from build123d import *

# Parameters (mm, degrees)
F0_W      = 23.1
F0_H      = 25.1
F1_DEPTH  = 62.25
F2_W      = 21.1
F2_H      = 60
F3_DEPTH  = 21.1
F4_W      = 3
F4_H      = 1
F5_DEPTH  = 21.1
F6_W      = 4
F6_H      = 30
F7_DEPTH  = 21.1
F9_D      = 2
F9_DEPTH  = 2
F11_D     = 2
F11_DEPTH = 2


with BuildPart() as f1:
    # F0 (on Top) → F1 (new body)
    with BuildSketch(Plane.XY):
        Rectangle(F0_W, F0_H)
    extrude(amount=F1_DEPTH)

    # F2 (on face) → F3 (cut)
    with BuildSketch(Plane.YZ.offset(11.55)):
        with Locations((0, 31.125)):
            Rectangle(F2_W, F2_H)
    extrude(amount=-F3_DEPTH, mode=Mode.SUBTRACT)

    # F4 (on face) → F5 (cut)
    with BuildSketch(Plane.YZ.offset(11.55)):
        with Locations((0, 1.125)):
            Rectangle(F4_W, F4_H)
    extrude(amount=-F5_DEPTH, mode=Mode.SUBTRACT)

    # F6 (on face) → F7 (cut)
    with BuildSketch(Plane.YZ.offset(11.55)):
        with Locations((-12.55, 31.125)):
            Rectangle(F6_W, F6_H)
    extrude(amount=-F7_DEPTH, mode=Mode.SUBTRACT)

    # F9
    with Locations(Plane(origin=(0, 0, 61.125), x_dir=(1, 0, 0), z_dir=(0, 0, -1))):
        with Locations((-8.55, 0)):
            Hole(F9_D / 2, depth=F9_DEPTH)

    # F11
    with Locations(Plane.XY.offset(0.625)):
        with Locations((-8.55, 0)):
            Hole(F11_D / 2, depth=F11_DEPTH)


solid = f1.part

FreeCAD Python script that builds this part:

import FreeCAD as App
import Part
import Sketcher
from FreeCAD import Vector
Q = App.Units.Quantity

doc = App.newDocument("Part")
body = doc.addObject("PartDesign::Body", "Body")

# Sketch on XY plane
sketch1 = body.newObject("Sketcher::SketchObject", "Sketch")
sketch1.AttachmentSupport = (doc.getObject("XY_Plane"), [""])
sketch1.MapMode = "FlatFace"
sketch1.addGeometry(Part.LineSegment(Vector(-12, 13, 0), Vector(-12, -13, 0)), False)
sketch1.addGeometry(Part.LineSegment(Vector(-12, -13, 0), Vector(12, -13, 0)), False)
sketch1.addGeometry(Part.LineSegment(Vector(12, -13, 0), Vector(12, 13, 0)), False)
sketch1.addGeometry(Part.LineSegment(Vector(12, 13, 0), Vector(-12, 13, 0)), False)
sketch1.addConstraint(Sketcher.Constraint("Coincident", 0, 2, 1, 1))
sketch1.addConstraint(Sketcher.Constraint("Coincident", 1, 2, 2, 1))
sketch1.addConstraint(Sketcher.Constraint("Coincident", 2, 2, 3, 1))
sketch1.addConstraint(Sketcher.Constraint("Coincident", 3, 2, 0, 1))
sketch1.addConstraint(Sketcher.Constraint("Vertical", 0))
sketch1.addConstraint(Sketcher.Constraint("Horizontal", 1))
sketch1.addConstraint(Sketcher.Constraint("Vertical", 2))
sketch1.addConstraint(Sketcher.Constraint("Horizontal", 3))
sketch1.addConstraint(Sketcher.Constraint("Symmetric", 0, 2, 2, 2, -1, 1))
sketch1.addConstraint(Sketcher.Constraint("DistanceX", 1, 1, 1, 2, Q("23.1 mm")))
sketch1.addConstraint(Sketcher.Constraint("DistanceY", 0, 2, 0, 1, Q("25.1 mm")))
pad1 = body.newObject("PartDesign::Pad", "Pad")
pad1.Profile = sketch1
pad1.Length = 62.25

# Sketch on YZ plane
sketch2 = body.newObject("Sketcher::SketchObject", "Sketch001")
sketch2.AttachmentSupport = (doc.getObject("YZ_Plane"), [""])
sketch2.MapMode = "FlatFace"
sketch2.AttachmentOffset = App.Placement(Vector(0, 0, 11.55), App.Rotation())
sketch2.addGeometry(Part.LineSegment(Vector(-11, 61, 0), Vector(-11, 1, 0)), False)
sketch2.addGeometry(Part.LineSegment(Vector(-11, 1, 0), Vector(11, 1, 0)), False)
sketch2.addGeometry(Part.LineSegment(Vector(11, 1, 0), Vector(11, 61, 0)), False)
sketch2.addGeometry(Part.LineSegment(Vector(11, 61, 0), Vector(-11, 61, 0)), False)
sketch2.addConstraint(Sketcher.Constraint("Coincident", 0, 2, 1, 1))
sketch2.addConstraint(Sketcher.Constraint("Coincident", 1, 2, 2, 1))
sketch2.addConstraint(Sketcher.Constraint("Coincident", 2, 2, 3, 1))
sketch2.addConstraint(Sketcher.Constraint("Coincident", 3, 2, 0, 1))
sketch2.addConstraint(Sketcher.Constraint("Vertical", 0))
sketch2.addConstraint(Sketcher.Constraint("Horizontal", 1))
sketch2.addConstraint(Sketcher.Constraint("Vertical", 2))
sketch2.addConstraint(Sketcher.Constraint("Horizontal", 3))
sketch2.addConstraint(Sketcher.Constraint("DistanceY", 0, 2, 0, 1, Q("60 mm")))
sketch2.addConstraint(Sketcher.Constraint("DistanceX", 1, 1, 1, 2, Q("21.1 mm")))
sketch2.addConstraint(Sketcher.Constraint("DistanceX", 0, 2, -1, 1, Q("10.55 mm")))
sketch2.addConstraint(Sketcher.Constraint("DistanceY", -1, 1, 0, 2, Q("1.125 mm")))
pocket1 = body.newObject("PartDesign::Pocket", "Pocket")
pocket1.Profile = sketch2
pocket1.Length = 21.1

# Sketch on YZ plane
sketch3 = body.newObject("Sketcher::SketchObject", "Sketch002")
sketch3.AttachmentSupport = (doc.getObject("YZ_Plane"), [""])
sketch3.MapMode = "FlatFace"
sketch3.AttachmentOffset = App.Placement(Vector(0, 0, 11.55), App.Rotation())
sketch3.addGeometry(Part.LineSegment(Vector(-1.5, 1.6, 0), Vector(-1.5, 0.6, 0)), False)
sketch3.addGeometry(Part.LineSegment(Vector(-1.5, 0.6, 0), Vector(1.5, 0.6, 0)), False)
sketch3.addGeometry(Part.LineSegment(Vector(1.5, 0.6, 0), Vector(1.5, 1.6, 0)), False)
sketch3.addGeometry(Part.LineSegment(Vector(1.5, 1.6, 0), Vector(-1.5, 1.6, 0)), False)
sketch3.addConstraint(Sketcher.Constraint("Coincident", 0, 2, 1, 1))
sketch3.addConstraint(Sketcher.Constraint("Coincident", 1, 2, 2, 1))
sketch3.addConstraint(Sketcher.Constraint("Coincident", 2, 2, 3, 1))
sketch3.addConstraint(Sketcher.Constraint("Coincident", 3, 2, 0, 1))
sketch3.addConstraint(Sketcher.Constraint("Vertical", 0))
sketch3.addConstraint(Sketcher.Constraint("Horizontal", 1))
sketch3.addConstraint(Sketcher.Constraint("Vertical", 2))
sketch3.addConstraint(Sketcher.Constraint("Horizontal", 3))
sketch3.addConstraint(Sketcher.Constraint("DistanceX", 1, 1, 1, 2, Q("3 mm")))
sketch3.addConstraint(Sketcher.Constraint("DistanceY", 0, 2, 0, 1, Q("1 mm")))
sketch3.addConstraint(Sketcher.Constraint("DistanceX", 0, 2, -1, 1, Q("1.5 mm")))
sketch3.addConstraint(Sketcher.Constraint("DistanceY", -1, 1, 0, 2, Q("0.625 mm")))
pocket2 = body.newObject("PartDesign::Pocket", "Pocket001")
pocket2.Profile = sketch3
pocket2.Length = 21.1

# Sketch on YZ plane
sketch4 = body.newObject("Sketcher::SketchObject", "Sketch003")
sketch4.AttachmentSupport = (doc.getObject("YZ_Plane"), [""])
sketch4.MapMode = "FlatFace"
sketch4.AttachmentOffset = App.Placement(Vector(0, 0, 11.55), App.Rotation())
sketch4.addGeometry(Part.LineSegment(Vector(-14.6, 46.1, 0), Vector(-14.6, 16.1, 0)), False)
sketch4.addGeometry(Part.LineSegment(Vector(-14.6, 16.1, 0), Vector(-10.6, 16.1, 0)), False)
sketch4.addGeometry(Part.LineSegment(Vector(-10.6, 16.1, 0), Vector(-10.6, 46.1, 0)), False)
sketch4.addGeometry(Part.LineSegment(Vector(-10.6, 46.1, 0), Vector(-14.6, 46.1, 0)), False)
sketch4.addConstraint(Sketcher.Constraint("Coincident", 0, 2, 1, 1))
sketch4.addConstraint(Sketcher.Constraint("Coincident", 1, 2, 2, 1))
sketch4.addConstraint(Sketcher.Constraint("Coincident", 2, 2, 3, 1))
sketch4.addConstraint(Sketcher.Constraint("Coincident", 3, 2, 0, 1))
sketch4.addConstraint(Sketcher.Constraint("Vertical", 0))
sketch4.addConstraint(Sketcher.Constraint("Horizontal", 1))
sketch4.addConstraint(Sketcher.Constraint("Vertical", 2))
sketch4.addConstraint(Sketcher.Constraint("Horizontal", 3))
sketch4.addConstraint(Sketcher.Constraint("DistanceX", 1, 1, 1, 2, Q("4 mm")))
sketch4.addConstraint(Sketcher.Constraint("DistanceY", 0, 2, 0, 1, Q("30 mm")))
sketch4.addConstraint(Sketcher.Constraint("DistanceX", 0, 2, -1, 1, Q("14.55 mm")))
sketch4.addConstraint(Sketcher.Constraint("DistanceY", -1, 1, 0, 2, Q("16.125 mm")))
pocket3 = body.newObject("PartDesign::Pocket", "Pocket002")
pocket3.Profile = sketch4
pocket3.Length = 21.1

# Sketch on XY plane
sketch5 = body.newObject("Sketcher::SketchObject", "Sketch004")
sketch5.AttachmentSupport = (doc.getObject("XY_Plane"), [""])
sketch5.MapMode = "FlatFace"
sketch5.AttachmentOffset = App.Placement(Vector(0, 0, 61.125), App.Rotation())
sketch5.addGeometry(Part.Circle(Vector(-8.6, 0, 0), Vector(0, 0, 1), 1), False)
sketch5.addConstraint(Sketcher.Constraint("PointOnObject", 0, 3, -1))
sketch5.addConstraint(Sketcher.Constraint("Diameter", 0, Q("2 mm")))
sketch5.addConstraint(Sketcher.Constraint("DistanceX", 0, 3, -1, 1, Q("8.55 mm")))
doc.recompute()
hole = body.newObject("PartDesign::Hole", "Hole")
hole.Profile = sketch5
hole.ThreadType = "None"
hole.Diameter = 2
hole.DepthType = "Dimension"
hole.Depth = 2
hole.DrillPoint = "Flat"
hole.Reversed = True

# Sketch on XY plane
sketch6 = body.newObject("Sketcher::SketchObject", "Sketch005")
sketch6.AttachmentSupport = (doc.getObject("XY_Plane"), [""])
sketch6.MapMode = "FlatFace"
sketch6.AttachmentOffset = App.Placement(Vector(0, 0, 0.625), App.Rotation())
sketch6.addGeometry(Part.Circle(Vector(-8.6, 0, 0), Vector(0, 0, 1), 1), False)
sketch6.addConstraint(Sketcher.Constraint("PointOnObject", 0, 3, -1))
sketch6.addConstraint(Sketcher.Constraint("Diameter", 0, Q("2 mm")))
sketch6.addConstraint(Sketcher.Constraint("DistanceX", 0, 3, -1, 1, Q("8.55 mm")))
doc.recompute()
hole2 = body.newObject("PartDesign::Hole", "Hole001")
hole2.Profile = sketch6
hole2.ThreadType = "None"
hole2.Diameter = 2
hole2.DepthType = "Dimension"
hole2.Depth = 2
hole2.DrillPoint = "Flat"

doc.recompute()
